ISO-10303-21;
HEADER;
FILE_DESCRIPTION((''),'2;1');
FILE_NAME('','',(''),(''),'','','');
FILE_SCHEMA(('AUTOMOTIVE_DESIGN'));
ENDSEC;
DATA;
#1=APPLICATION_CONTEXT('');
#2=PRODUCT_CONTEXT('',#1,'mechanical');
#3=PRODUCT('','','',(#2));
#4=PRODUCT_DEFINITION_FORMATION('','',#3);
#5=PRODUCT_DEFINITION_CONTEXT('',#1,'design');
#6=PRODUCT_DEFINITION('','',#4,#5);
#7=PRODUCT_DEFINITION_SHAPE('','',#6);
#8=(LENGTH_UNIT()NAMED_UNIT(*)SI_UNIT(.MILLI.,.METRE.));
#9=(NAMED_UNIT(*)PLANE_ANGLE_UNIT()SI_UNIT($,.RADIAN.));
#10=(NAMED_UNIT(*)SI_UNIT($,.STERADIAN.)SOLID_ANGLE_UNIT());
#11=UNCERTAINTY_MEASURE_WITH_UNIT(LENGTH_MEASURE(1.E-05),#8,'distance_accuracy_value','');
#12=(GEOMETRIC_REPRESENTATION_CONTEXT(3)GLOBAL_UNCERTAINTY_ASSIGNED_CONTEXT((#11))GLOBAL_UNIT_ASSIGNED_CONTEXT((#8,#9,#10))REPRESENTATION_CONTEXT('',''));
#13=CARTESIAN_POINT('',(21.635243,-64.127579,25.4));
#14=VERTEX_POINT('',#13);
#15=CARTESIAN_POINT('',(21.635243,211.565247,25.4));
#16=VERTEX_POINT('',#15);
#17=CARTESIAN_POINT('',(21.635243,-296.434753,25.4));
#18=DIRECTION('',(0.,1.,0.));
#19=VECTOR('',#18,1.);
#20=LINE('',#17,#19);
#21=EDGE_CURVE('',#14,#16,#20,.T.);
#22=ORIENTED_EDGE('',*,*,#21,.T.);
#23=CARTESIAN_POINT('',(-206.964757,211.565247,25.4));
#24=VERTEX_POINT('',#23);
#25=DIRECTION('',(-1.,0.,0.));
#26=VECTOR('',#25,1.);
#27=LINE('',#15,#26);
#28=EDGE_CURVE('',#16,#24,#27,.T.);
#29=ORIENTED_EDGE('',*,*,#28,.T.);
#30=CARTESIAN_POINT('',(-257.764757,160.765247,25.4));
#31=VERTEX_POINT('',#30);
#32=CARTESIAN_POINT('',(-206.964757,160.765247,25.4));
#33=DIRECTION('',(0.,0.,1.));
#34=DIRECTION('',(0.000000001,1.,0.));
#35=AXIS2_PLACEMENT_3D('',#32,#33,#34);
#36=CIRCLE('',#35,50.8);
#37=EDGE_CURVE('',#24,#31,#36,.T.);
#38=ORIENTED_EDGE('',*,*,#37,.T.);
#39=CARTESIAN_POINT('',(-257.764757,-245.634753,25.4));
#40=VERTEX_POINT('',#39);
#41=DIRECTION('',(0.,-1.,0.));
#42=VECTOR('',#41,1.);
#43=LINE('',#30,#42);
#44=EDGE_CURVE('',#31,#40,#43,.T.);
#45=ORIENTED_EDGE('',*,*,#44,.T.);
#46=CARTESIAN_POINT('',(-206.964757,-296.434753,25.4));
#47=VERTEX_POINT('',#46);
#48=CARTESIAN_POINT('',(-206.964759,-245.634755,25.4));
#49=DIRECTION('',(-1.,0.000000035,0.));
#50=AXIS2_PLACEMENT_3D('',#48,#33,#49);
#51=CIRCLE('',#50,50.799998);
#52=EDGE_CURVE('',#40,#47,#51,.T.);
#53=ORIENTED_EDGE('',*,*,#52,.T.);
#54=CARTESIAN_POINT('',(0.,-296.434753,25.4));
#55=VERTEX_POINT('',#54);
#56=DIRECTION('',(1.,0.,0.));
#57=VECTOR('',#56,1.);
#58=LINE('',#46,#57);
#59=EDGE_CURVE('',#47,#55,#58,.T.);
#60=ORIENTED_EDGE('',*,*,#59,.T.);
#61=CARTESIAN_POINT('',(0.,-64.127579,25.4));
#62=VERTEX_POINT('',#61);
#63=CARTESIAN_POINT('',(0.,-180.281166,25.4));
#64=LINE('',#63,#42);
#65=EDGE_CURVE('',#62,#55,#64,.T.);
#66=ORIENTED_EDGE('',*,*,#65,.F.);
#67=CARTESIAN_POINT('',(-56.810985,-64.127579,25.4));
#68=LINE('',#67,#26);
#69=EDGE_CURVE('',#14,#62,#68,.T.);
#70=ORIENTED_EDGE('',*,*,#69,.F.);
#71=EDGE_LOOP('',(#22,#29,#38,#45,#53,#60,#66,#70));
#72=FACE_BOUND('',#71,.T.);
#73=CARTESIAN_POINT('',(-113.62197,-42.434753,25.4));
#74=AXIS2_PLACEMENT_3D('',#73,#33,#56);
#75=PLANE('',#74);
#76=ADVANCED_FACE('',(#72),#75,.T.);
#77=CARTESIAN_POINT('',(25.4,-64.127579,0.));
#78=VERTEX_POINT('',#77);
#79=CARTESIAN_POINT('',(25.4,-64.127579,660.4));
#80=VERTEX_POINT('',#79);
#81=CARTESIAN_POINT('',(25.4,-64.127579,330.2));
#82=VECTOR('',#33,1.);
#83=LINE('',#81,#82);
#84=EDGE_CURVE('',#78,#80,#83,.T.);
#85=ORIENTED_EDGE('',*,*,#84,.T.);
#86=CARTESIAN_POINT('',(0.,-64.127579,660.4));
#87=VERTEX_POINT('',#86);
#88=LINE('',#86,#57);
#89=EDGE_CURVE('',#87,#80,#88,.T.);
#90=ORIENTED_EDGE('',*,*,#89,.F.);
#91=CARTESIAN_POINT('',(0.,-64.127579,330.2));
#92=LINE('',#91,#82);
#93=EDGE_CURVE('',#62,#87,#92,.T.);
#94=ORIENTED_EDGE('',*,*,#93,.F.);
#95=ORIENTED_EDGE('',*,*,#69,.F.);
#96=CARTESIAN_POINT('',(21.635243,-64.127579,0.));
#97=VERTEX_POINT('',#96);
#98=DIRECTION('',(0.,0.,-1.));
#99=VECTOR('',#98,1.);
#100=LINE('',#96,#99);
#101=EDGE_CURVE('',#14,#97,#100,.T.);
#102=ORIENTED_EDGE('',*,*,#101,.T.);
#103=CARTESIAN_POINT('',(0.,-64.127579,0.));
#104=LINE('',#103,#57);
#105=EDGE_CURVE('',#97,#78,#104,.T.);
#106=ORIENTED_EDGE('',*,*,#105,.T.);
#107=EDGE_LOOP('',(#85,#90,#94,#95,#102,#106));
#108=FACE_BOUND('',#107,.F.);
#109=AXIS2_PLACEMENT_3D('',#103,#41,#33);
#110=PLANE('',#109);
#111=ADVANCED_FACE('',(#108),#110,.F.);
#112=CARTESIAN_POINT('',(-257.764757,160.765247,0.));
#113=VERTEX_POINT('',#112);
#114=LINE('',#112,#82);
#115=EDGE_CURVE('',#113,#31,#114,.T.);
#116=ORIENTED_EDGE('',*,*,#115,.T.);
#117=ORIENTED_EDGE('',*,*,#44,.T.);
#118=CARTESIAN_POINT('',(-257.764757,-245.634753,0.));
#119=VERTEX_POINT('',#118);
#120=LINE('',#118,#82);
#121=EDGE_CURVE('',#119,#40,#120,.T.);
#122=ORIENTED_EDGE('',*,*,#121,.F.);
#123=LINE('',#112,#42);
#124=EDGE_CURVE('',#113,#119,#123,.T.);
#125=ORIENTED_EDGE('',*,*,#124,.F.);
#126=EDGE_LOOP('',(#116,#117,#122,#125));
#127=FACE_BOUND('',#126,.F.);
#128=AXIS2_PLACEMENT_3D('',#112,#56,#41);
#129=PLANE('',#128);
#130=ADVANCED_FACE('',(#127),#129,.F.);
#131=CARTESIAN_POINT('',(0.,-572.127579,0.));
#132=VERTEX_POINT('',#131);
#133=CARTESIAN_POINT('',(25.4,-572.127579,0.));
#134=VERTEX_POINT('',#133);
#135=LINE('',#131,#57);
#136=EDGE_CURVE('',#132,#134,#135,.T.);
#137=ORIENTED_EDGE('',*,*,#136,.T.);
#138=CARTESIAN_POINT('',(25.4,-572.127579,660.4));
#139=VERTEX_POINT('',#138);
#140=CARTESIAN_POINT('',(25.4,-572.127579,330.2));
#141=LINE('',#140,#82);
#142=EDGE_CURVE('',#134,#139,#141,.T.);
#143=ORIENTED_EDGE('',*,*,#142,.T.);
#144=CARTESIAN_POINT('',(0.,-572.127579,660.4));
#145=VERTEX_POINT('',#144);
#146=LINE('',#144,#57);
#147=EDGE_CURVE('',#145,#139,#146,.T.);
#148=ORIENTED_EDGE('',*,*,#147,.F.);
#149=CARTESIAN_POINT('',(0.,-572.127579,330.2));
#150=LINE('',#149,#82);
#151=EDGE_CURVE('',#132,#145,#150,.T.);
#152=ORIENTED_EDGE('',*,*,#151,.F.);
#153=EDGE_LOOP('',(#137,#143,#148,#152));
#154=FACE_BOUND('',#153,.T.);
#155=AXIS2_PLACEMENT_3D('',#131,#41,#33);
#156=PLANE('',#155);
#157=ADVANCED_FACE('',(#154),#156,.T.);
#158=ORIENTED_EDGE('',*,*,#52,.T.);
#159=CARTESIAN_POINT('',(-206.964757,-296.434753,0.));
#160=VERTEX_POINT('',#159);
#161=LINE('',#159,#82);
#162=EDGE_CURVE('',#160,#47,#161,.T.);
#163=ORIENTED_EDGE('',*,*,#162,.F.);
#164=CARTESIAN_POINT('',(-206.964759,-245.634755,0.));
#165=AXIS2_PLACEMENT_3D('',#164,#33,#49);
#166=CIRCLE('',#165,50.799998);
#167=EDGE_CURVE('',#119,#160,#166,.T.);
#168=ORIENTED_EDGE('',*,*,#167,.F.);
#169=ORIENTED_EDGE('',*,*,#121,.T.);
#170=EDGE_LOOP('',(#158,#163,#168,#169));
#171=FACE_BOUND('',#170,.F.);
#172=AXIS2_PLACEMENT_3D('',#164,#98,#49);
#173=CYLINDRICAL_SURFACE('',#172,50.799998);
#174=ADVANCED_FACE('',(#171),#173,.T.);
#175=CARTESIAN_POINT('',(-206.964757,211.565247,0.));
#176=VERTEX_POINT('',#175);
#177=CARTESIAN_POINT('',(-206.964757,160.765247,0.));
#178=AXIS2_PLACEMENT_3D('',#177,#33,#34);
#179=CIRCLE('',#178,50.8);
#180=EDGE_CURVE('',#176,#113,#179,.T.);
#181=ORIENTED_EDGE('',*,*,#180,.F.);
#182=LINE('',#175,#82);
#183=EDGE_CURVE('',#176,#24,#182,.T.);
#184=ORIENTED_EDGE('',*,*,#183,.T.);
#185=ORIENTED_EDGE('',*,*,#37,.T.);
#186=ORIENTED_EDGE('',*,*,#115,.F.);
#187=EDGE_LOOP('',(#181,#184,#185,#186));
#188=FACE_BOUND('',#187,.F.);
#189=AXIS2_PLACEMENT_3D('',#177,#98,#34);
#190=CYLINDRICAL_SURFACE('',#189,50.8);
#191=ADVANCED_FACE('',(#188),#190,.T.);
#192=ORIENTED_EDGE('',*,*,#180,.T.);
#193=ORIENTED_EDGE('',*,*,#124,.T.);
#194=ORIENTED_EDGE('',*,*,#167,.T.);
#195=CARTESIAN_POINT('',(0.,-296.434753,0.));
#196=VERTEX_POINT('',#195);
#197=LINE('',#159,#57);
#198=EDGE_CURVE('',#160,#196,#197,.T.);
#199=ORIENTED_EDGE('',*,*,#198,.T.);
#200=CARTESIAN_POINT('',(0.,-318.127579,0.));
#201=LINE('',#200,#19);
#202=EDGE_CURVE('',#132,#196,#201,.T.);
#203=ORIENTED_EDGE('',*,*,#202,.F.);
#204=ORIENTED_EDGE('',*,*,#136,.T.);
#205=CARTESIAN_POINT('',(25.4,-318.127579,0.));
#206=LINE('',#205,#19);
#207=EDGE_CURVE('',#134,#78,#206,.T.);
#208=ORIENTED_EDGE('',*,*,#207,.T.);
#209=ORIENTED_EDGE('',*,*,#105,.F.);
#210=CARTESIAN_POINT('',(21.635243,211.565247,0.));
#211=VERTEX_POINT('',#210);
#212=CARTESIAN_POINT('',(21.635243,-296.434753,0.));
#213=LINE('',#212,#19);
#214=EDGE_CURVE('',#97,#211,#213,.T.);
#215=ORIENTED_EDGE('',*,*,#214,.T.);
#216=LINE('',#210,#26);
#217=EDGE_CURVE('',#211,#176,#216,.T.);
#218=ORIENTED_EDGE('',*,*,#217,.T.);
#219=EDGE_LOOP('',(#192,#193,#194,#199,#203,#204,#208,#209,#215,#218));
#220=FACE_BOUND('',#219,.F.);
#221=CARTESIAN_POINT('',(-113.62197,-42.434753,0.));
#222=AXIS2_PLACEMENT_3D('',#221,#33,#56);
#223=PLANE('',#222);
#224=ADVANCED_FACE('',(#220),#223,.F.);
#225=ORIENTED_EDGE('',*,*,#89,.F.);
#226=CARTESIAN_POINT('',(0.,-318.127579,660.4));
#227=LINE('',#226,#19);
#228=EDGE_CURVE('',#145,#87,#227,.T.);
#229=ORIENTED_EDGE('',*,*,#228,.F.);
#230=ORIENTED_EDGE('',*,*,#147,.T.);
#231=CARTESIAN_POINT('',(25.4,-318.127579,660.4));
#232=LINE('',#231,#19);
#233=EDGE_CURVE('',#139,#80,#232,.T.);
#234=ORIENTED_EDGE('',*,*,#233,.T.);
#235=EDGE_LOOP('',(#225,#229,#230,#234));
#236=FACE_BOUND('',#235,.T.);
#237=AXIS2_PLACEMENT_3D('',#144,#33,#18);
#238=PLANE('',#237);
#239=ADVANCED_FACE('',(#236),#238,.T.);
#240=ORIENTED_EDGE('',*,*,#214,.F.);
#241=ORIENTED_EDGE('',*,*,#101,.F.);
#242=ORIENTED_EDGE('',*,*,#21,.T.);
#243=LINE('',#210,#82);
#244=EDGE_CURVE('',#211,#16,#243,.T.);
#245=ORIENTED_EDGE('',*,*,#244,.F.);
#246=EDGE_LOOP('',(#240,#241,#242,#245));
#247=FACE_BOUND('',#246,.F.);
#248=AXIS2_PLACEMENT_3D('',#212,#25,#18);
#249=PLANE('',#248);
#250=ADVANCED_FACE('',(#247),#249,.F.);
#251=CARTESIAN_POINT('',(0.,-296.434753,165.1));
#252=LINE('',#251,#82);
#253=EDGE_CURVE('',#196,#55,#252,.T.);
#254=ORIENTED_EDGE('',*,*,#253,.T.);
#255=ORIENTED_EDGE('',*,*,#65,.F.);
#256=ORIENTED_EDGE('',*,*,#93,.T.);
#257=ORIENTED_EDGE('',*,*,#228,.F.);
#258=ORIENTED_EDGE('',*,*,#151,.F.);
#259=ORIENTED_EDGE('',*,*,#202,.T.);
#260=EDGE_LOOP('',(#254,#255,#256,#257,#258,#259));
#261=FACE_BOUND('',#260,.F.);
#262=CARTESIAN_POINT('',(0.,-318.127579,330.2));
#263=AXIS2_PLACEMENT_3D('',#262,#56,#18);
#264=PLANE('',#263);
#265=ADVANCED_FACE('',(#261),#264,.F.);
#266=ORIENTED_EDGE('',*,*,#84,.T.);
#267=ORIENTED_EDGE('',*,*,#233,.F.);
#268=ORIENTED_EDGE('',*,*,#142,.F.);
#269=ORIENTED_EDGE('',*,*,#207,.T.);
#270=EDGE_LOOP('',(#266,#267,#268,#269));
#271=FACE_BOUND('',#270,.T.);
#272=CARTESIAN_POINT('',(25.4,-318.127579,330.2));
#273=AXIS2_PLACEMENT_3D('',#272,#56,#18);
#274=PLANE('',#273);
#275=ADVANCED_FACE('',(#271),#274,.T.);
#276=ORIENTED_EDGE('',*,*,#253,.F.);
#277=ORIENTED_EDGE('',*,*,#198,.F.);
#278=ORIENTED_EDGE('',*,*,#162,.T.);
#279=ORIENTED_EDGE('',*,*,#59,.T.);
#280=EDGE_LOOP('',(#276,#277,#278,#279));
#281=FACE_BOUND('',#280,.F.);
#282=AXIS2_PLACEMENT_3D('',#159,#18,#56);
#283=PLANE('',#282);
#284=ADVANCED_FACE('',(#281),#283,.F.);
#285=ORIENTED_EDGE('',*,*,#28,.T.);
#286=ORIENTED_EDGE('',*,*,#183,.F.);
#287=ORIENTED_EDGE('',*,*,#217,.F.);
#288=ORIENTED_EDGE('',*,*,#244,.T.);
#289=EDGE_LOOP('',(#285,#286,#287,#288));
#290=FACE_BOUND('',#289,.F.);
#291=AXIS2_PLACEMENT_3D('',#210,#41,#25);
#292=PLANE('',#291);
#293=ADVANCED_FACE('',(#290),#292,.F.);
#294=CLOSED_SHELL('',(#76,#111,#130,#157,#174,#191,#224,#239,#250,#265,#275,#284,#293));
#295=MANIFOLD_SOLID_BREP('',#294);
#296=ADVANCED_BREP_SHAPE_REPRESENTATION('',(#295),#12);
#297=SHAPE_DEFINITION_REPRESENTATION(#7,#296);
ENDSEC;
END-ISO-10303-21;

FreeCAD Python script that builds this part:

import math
import FreeCAD as App
import Part
import Sketcher
from FreeCAD import Vector
Q = App.Units.Quantity


def add_polygon(sketch, points):
    """Adds a closed chain of lines whose ends are joined by coincident constraints."""
    first, n = sketch.GeometryCount, len(points)
    for a, b in zip(points, points[1:] + points[:1]):
        sketch.addGeometry(Part.LineSegment(App.Vector(*a, 0), App.Vector(*b, 0)), False)
    for i in range(n):
        sketch.addConstraint(Sketcher.Constraint("Coincident", first + i, 2, first + (i + 1) % n, 1))

doc = App.newDocument("Part")
body = doc.addObject("PartDesign::Body", "Body")

# Sketch on YZ plane
sketch1 = body.newObject("Sketcher::SketchObject", "Sketch")
sketch1.AttachmentSupport = (doc.getObject("YZ_Plane"), [""])
sketch1.MapMode = "FlatFace"
add_polygon(sketch1, [(-572, 660), (-572, 0), (-64, 0), (-64, 660)])  # lines 0-3
sketch1.addConstraint(Sketcher.Constraint("Vertical", 0))
sketch1.addConstraint(Sketcher.Constraint("Horizontal", 1))
sketch1.addConstraint(Sketcher.Constraint("Vertical", 2))
sketch1.addConstraint(Sketcher.Constraint("Horizontal", 3))
sketch1.addConstraint(Sketcher.Constraint("PointOnObject", 0, 2, -1))
sketch1.addConstraint(Sketcher.Constraint("DistanceX", 1, 1, 1, 2, Q("20 in")))
sketch1.addConstraint(Sketcher.Constraint("DistanceY", 0, 2, 0, 1, Q("26 in")))
sketch1.addConstraint(Sketcher.Constraint("DistanceX", 0, 2, -1, 1, Q("572.127579 mm")))
pad1 = body.newObject("PartDesign::Pad", "Pad")
pad1.Profile = sketch1
pad1.Length = Q("1 in")

# Sketch on XY plane
sketch2 = body.newObject("Sketcher::SketchObject", "Sketch001")
sketch2.AttachmentSupport = (doc.getObject("XY_Plane"), [""])
sketch2.MapMode = "FlatFace"
sketch2.addGeometry(Part.LineSegment(Vector(22, 212, 0), Vector(-207, 212, 0)), False)
sketch2.addGeometry(Part.ArcOfCircle(Part.Circle(Vector(-207, 161, 0), Vector(0, 0, 1), 51), math.radians(90), math.radians(180)), False)
sketch2.addGeometry(Part.LineSegment(Vector(-258, 161, 0), Vector(-258, -246, 0)), False)
sketch2.addGeometry(Part.ArcOfCircle(Part.Circle(Vector(-207, -246, 0), Vector(0, 0, 1), 51), math.radians(180), math.radians(270)), False)
sketch2.addGeometry(Part.LineSegment(Vector(-207, -296, 0), Vector(22, -296, 0)), False)
sketch2.addGeometry(Part.LineSegment(Vector(22, -296, 0), Vector(22, 212, 0)), False)
sketch2.addConstraint(Sketcher.Constraint("Tangent", 0, 2, 1, 1))
sketch2.addConstraint(Sketcher.Constraint("Tangent", 1, 2, 2, 1))
sketch2.addConstraint(Sketcher.Constraint("Tangent", 2, 2, 3, 1))
sketch2.addConstraint(Sketcher.Constraint("Tangent", 3, 2, 4, 1))
sketch2.addConstraint(Sketcher.Constraint("Coincident", 4, 2, 5, 1))
sketch2.addConstraint(Sketcher.Constraint("Coincident", 5, 2, 0, 1))
sketch2.addConstraint(Sketcher.Constraint("Horizontal", 0))
sketch2.addConstraint(Sketcher.Constraint("Vertical", 2))
sketch2.addConstraint(Sketcher.Constraint("Horizontal", 4))
sketch2.addConstraint(Sketcher.Constraint("Vertical", 5))
sketch2.addConstraint(Sketcher.Constraint("Equal", 1, 3))
sketch2.addConstraint(Sketcher.Constraint("Radius", 1, Q("2 in")))
sketch2.addConstraint(Sketcher.Constraint("DistanceX", 0, 2, 0, 1, Q("9 in")))
sketch2.addConstraint(Sketcher.Constraint("DistanceY", 2, 2, 2, 1, Q("16 in")))
sketch2.addConstraint(Sketcher.Constraint("DistanceX", 3, 3, -1, 1, Q("206.964759 mm")))
sketch2.addConstraint(Sketcher.Constraint("DistanceY", -1, 1, 1, 3, Q("160.765247 mm")))
pad2 = body.newObject("PartDesign::Pad", "Pad001")
pad2.Profile = sketch2
pad2.Length = Q("1 in")

doc.recompute()
